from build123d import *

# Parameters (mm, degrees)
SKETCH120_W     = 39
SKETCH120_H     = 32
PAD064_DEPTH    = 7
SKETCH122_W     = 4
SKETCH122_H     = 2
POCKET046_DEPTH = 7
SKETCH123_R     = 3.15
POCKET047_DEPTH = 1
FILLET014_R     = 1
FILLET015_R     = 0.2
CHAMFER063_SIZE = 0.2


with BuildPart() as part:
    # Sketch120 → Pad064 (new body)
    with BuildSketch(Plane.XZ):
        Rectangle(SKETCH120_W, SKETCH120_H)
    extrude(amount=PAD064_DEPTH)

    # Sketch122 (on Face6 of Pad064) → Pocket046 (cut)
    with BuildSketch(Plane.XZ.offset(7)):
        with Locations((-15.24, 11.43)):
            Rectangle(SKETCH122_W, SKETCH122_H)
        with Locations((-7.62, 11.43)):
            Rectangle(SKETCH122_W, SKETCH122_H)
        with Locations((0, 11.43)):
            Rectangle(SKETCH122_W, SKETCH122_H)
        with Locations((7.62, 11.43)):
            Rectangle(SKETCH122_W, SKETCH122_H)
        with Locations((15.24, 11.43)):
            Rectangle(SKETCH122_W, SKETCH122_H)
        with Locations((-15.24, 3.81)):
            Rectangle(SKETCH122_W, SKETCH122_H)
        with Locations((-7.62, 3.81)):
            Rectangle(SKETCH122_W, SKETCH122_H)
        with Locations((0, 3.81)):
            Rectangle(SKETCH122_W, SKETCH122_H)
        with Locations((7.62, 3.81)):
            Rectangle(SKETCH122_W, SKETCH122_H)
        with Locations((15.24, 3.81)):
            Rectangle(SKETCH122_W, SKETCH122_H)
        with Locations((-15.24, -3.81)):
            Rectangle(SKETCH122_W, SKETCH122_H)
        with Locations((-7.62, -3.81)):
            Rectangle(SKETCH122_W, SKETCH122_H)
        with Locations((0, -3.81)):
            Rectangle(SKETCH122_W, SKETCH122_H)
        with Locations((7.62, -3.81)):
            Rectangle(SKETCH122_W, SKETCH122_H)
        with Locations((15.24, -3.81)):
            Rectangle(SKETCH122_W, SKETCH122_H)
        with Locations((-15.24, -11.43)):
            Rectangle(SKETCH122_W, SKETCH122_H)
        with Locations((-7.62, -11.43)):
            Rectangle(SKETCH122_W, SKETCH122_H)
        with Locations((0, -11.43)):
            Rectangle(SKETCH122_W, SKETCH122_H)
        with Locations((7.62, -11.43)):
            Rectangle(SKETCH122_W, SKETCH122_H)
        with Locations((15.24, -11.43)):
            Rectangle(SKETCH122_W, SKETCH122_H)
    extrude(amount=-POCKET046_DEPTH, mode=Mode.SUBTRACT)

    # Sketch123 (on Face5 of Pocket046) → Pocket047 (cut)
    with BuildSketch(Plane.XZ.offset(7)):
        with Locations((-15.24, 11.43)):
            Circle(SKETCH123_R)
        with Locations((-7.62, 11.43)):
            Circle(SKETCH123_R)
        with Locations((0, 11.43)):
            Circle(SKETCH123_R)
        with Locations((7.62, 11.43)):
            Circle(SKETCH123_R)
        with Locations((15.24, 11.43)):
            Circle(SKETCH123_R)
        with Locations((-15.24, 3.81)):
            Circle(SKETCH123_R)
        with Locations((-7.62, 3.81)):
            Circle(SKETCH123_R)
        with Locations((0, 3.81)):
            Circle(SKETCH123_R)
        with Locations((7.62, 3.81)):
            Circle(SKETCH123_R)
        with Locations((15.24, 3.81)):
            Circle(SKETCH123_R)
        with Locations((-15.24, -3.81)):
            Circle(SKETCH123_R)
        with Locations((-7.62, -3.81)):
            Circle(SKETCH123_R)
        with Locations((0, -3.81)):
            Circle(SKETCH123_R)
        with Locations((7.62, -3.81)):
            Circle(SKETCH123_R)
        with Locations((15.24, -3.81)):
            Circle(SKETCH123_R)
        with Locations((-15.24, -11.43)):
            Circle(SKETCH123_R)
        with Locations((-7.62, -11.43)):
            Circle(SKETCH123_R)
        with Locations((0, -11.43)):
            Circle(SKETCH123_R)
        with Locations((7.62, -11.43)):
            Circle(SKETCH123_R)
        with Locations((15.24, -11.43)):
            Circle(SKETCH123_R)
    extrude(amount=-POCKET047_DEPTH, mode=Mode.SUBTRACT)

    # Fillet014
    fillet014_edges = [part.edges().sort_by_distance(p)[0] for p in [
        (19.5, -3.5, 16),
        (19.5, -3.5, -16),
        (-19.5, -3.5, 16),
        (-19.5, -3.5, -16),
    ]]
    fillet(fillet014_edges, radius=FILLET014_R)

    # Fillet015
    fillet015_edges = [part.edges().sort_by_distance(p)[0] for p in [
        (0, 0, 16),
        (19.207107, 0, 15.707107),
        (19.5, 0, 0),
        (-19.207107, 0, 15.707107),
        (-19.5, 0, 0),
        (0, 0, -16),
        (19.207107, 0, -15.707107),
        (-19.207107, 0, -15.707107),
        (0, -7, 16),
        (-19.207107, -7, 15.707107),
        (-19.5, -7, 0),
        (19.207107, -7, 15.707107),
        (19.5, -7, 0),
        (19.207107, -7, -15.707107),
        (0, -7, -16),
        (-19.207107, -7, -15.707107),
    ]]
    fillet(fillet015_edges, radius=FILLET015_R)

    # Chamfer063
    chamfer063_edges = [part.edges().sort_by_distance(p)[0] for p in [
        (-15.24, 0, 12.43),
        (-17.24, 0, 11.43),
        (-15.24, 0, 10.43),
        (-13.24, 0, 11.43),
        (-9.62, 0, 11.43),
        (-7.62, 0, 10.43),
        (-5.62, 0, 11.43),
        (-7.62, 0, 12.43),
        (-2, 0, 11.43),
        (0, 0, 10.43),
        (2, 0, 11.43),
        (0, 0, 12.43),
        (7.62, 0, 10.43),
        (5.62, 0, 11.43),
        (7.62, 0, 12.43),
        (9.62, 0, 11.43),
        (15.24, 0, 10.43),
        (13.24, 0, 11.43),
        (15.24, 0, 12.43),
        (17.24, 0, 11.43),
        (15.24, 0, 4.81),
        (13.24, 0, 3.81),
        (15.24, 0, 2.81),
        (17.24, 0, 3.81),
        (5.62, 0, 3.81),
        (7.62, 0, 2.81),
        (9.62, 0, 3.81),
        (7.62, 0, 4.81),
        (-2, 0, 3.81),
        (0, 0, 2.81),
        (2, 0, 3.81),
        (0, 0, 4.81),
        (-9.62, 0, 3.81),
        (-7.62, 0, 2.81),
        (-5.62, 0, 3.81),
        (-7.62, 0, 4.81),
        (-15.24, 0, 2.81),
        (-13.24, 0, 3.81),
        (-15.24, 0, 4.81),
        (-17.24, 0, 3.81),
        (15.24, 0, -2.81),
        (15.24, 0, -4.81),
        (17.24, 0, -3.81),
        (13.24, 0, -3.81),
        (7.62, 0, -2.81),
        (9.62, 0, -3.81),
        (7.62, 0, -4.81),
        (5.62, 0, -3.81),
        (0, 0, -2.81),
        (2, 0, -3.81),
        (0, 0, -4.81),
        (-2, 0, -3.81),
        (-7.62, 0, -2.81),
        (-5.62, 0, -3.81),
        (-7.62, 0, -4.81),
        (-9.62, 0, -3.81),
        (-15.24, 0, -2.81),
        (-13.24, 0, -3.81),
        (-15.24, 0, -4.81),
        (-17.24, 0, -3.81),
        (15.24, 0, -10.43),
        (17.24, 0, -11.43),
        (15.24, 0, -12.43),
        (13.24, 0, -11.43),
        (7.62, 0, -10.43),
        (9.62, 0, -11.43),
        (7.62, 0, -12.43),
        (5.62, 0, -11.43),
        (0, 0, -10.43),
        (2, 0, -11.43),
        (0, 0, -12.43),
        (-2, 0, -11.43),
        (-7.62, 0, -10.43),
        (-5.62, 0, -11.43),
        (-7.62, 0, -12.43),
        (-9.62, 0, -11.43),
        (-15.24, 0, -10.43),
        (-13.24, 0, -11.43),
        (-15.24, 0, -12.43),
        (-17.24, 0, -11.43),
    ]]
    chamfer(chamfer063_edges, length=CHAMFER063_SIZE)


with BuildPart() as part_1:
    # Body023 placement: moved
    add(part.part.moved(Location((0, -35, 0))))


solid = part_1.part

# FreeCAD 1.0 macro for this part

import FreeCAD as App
import Part
import Sketcher
Q = App.Units.Quantity


def edges_at(feature, points):
    """Names of the edges that pass closest to the given points."""
    edges = feature.Shape.Edges
    near = lambda p: min(range(len(edges)), key=lambda i: edges[i].distToShape(Part.Vertex(*p))[0])
    return sorted({f"Edge{near(p) + 1}" for p in points})


def add_polygon(sketch, points):
    """Adds a closed chain of lines whose ends are joined by coincident constraints."""
    first, n = sketch.GeometryCount, len(points)
    for a, b in zip(points, points[1:] + points[:1]):
        sketch.addGeometry(Part.LineSegment(App.Vector(*a, 0), App.Vector(*b, 0)), False)
    for i in range(n):
        sketch.addConstraint(Sketcher.Constraint("Coincident", first + i, 2, first + (i + 1) % n, 1))

doc = App.newDocument("Part")
body = doc.addObject("PartDesign::Body", "Body")

# Sketch on XZ plane
sketch1 = body.newObject("Sketcher::SketchObject", "Sketch")
sketch1.AttachmentSupport = (doc.getObject("XZ_Plane"), [""])
sketch1.MapMode = "FlatFace"
add_polygon(sketch1, [(-20, 16), (-20, -16), (20, -16), (20, 16)])  # lines 0-3
sketch1.addConstraint([
    Sketcher.Constraint("Vertical", 0),
    Sketcher.Constraint("Horizontal", 1),
    Sketcher.Constraint("Vertical", 2),
    Sketcher.Constraint("Horizontal", 3),
    Sketcher.Constraint("Symmetric", 0, 2, 2, 2, -1, 1),
    Sketcher.Constraint("DistanceX", 1, 1, 1, 2, Q("39 mm")),
    Sketcher.Constraint("DistanceY", 0, 2, 0, 1, Q("32 mm")),
])
pad1 = body.newObject("PartDesign::Pad", "Pad")
pad1.Profile = sketch1
pad1.Length = 7

# Sketch on XZ plane
sketch2 = body.newObject("Sketcher::SketchObject", "Sketch001")
sketch2.AttachmentSupport = (doc.getObject("XZ_Plane"), [""])
sketch2.MapMode = "FlatFace"
sketch2.AttachmentOffset = App.Placement(App.Vector(0, 0, 7), App.Rotation())
add_polygon(sketch2, [(-17.2, 12.4), (-17.2, 10.4), (-13.2, 10.4), (-13.2, 12.4)])  # lines 0-3
add_polygon(sketch2, [(-9.6, 12.4), (-9.6, 10.4), (-5.6, 10.4), (-5.6, 12.4)])  # lines 4-7
add_polygon(sketch2, [(-2, 12.4), (-2, 10.4), (2, 10.4), (2, 12.4)])  # lines 8-11
add_polygon(sketch2, [(5.6, 12.4), (5.6, 10.4), (9.6, 10.4), (9.6, 12.4)])  # lines 12-15
add_polygon(sketch2, [(13.2, 12.4), (13.2, 10.4), (17.2, 10.4), (17.2, 12.4)])  # lines 16-19
add_polygon(sketch2, [(-17.2, 4.8), (-17.2, 2.8), (-13.2, 2.8), (-13.2, 4.8)])  # lines 20-23
add_polygon(sketch2, [(-9.6, 4.8), (-9.6, 2.8), (-5.6, 2.8), (-5.6, 4.8)])  # lines 24-27
add_polygon(sketch2, [(-2, 4.8), (-2, 2.8), (2, 2.8), (2, 4.8)])  # lines 28-31
add_polygon(sketch2, [(5.6, 4.8), (5.6, 2.8), (9.6, 2.8), (9.6, 4.8)])  # lines 32-35
add_polygon(sketch2, [(13.2, 4.8), (13.2, 2.8), (17.2, 2.8), (17.2, 4.8)])  # lines 36-39
add_polygon(sketch2, [(-17.2, -2.8), (-17.2, -4.8), (-13.2, -4.8), (-13.2, -2.8)])  # lines 40-43
add_polygon(sketch2, [(-9.6, -2.8), (-9.6, -4.8), (-5.6, -4.8), (-5.6, -2.8)])  # lines 44-47
add_polygon(sketch2, [(-2, -2.8), (-2, -4.8), (2, -4.8), (2, -2.8)])  # lines 48-51
add_polygon(sketch2, [(5.6, -2.8), (5.6, -4.8), (9.6, -4.8), (9.6, -2.8)])  # lines 52-55
add_polygon(sketch2, [(13.2, -2.8), (13.2, -4.8), (17.2, -4.8), (17.2, -2.8)])  # lines 56-59
add_polygon(sketch2, [(-17.2, -10.4), (-17.2, -12.4), (-13.2, -12.4), (-13.2, -10.4)])  # lines 60-63
add_polygon(sketch2, [(-9.6, -10.4), (-9.6, -12.4), (-5.6, -12.4), (-5.6, -10.4)])  # lines 64-67
add_polygon(sketch2, [(-2, -10.4), (-2, -12.4), (2, -12.4), (2, -10.4)])  # lines 68-71
add_polygon(sketch2, [(5.6, -10.4), (5.6, -12.4), (9.6, -12.4), (9.6, -10.4)])  # lines 72-75
add_polygon(sketch2, [(13.2, -10.4), (13.2, -12.4), (17.2, -12.4), (17.2, -10.4)])  # lines 76-79
sketch2.addConstraint([
    Sketcher.Constraint("Vertical", 0),
    Sketcher.Constraint("Horizontal", 1),
    Sketcher.Constraint("Vertical", 2),
    Sketcher.Constraint("Horizontal", 3),
    Sketcher.Constraint("Vertical", 4),
    Sketcher.Constraint("Horizontal", 5),
    Sketcher.Constraint("Vertical", 6),
    Sketcher.Constraint("Horizontal", 7),
    Sketcher.Constraint("Vertical", 8),
    Sketcher.Constraint("Horizontal", 9),
    Sketcher.Constraint("Vertical", 10),
    Sketcher.Constraint("Horizontal", 11),
    Sketcher.Constraint("Vertical", 12),
    Sketcher.Constraint("Horizontal", 13),
    Sketcher.Constraint("Vertical", 14),
    Sketcher.Constraint("Horizontal", 15),
    Sketcher.Constraint("Vertical", 16),
    Sketcher.Constraint("Horizontal", 17),
    Sketcher.Constraint("Vertical", 18),
    Sketcher.Constraint("Horizontal", 19),
    Sketcher.Constraint("Vertical", 20),
    Sketcher.Constraint("Horizontal", 21),
    Sketcher.Constraint("Vertical", 22),
    Sketcher.Constraint("Horizontal", 23),
    Sketcher.Constraint("Vertical", 24),
    Sketcher.Constraint("Horizontal", 25),
    Sketcher.Constraint("Vertical", 26),
    Sketcher.Constraint("Horizontal", 27),
    Sketcher.Constraint("Vertical", 28),
    Sketcher.Constraint("Horizontal", 29),
    Sketcher.Constraint("Vertical", 30),
    Sketcher.Constraint("Horizontal", 31),
    Sketcher.Constraint("Vertical", 32),
    Sketcher.Constraint("Horizontal", 33),
    Sketcher.Constraint("Vertical", 34),
    Sketcher.Constraint("Horizontal", 35),
    Sketcher.Constraint("Vertical", 36),
    Sketcher.Constraint("Horizontal", 37),
    Sketcher.Constraint("Vertical", 38),
    Sketcher.Constraint("Horizontal", 39),
    Sketcher.Constraint("Vertical", 40),
    Sketcher.Constraint("Horizontal", 41),
    Sketcher.Constraint("Vertical", 42),
    Sketcher.Constraint("Horizontal", 43),
    Sketcher.Constraint("Vertical", 44),
    Sketcher.Constraint("Horizontal", 45),
    Sketcher.Constraint("Vertical", 46),
    Sketcher.Constraint("Horizontal", 47),
    Sketcher.Constraint("Vertical", 48),
    Sketcher.Constraint("Horizontal", 49),
    Sketcher.Constraint("Vertical", 50),
    Sketcher.Constraint("Horizontal", 51),
    Sketcher.Constraint("Vertical", 52),
    Sketcher.Constraint("Horizontal", 53),
    Sketcher.Constraint("Vertical", 54),
    Sketcher.Constraint("Horizontal", 55),
    Sketcher.Constraint("Vertical", 56),
    Sketcher.Constraint("Horizontal", 57),
    Sketcher.Constraint("Vertical", 58),
    Sketcher.Constraint("Horizontal", 59),
    Sketcher.Constraint("Vertical", 60),
    Sketcher.Constraint("Horizontal", 61),
    Sketcher.Constraint("Vertical", 62),
    Sketcher.Constraint("Horizontal", 63),
    Sketcher.Constraint("Vertical", 64),
    Sketcher.Constraint("Horizontal", 65),
    Sketcher.Constraint("Vertical", 66),
    Sketcher.Constraint("Horizontal", 67),
    Sketcher.Constraint("Vertical", 68),
    Sketcher.Constraint("Horizontal", 69),
    Sketcher.Constraint("Vertical", 70),
    Sketcher.Constraint("Horizontal", 71),
    Sketcher.Constraint("Vertical", 72),
    Sketcher.Constraint("Horizontal", 73),
    Sketcher.Constraint("Vertical", 74),
    Sketcher.Constraint("Horizontal", 75),
    Sketcher.Constraint("Vertical", 76),
    Sketcher.Constraint("Horizontal", 77),
    Sketcher.Constraint("Vertical", 78),
    Sketcher.Constraint("Horizontal", 79),
    Sketcher.Constraint("Symmetric", 38, 2, 40, 2, -1, 1),
    Sketcher.Constraint("Symmetric", 36, 2, 42, 2, -1, 1),
    Sketcher.Constraint("Symmetric", 34, 2, 44, 2, -1, 1),
    Sketcher.Constraint("Symmetric", 32, 2, 46, 2, -1, 1),
    Sketcher.Constraint("Symmetric", 30, 2, 48, 2, -1, 1),
    Sketcher.Constraint("Symmetric", 28, 2, 50, 2, -1, 1),
    Sketcher.Constraint("Symmetric", 26, 2, 52, 2, -1, 1),
    Sketcher.Constraint("Symmetric", 24, 2, 54, 2, -1, 1),
    Sketcher.Constraint("Symmetric", 22, 2, 56, 2, -1, 1),
    Sketcher.Constraint("Symmetric", 20, 2, 58, 2, -1, 1),
    Sketcher.Constraint("Symmetric", 18, 2, 60, 2, -1, 1),
    Sketcher.Constraint("Symmetric", 16, 2, 62, 2, -1, 1),
    Sketcher.Constraint("Symmetric", 14, 2, 64, 2, -1, 1),
    Sketcher.Constraint("Symmetric", 12, 2, 66, 2, -1, 1),
    Sketcher.Constraint("Symmetric", 10, 2, 68, 2, -1, 1),
    Sketcher.Constraint("Symmetric", 8, 2, 70, 2, -1, 1),
    Sketcher.Constraint("Symmetric", 6, 2, 72, 2, -1, 1),
    Sketcher.Constraint("Symmetric", 4, 2, 74, 2, -1, 1),
    Sketcher.Constraint("Symmetric", 2, 2, 76, 2, -1, 1),
    Sketcher.Constraint("Symmetric", 0, 2, 78, 2, -1, 1),
    Sketcher.Constraint("Symmetric", 5, 2, 12, 2, -2),
    Sketcher.Constraint("Symmetric", 7, 2, 14, 2, -2),
    Sketcher.Constraint("Symmetric", 1, 2, 16, 2, -2),
    Sketcher.Constraint("Symmetric", 3, 2, 18, 2, -2),
    Sketcher.Constraint("Symmetric", 25, 2, 32, 2, -2),
    Sketcher.Constraint("Symmetric", 27, 2, 34, 2, -2),
    Sketcher.Constraint("Symmetric", 21, 2, 36, 2, -2),
    Sketcher.Constraint("Symmetric", 23, 2, 38, 2, -2),
    Sketcher.Constraint("Horizontal", 1, 2, 4, 2),
    Sketcher.Constraint("Horizontal", 3, 2, 6, 2),
    Sketcher.Constraint("Horizontal", 5, 2, 8, 2),
    Sketcher.Constraint("Horizontal", 7, 2, 10, 2),
    Sketcher.Constraint("Horizontal", 21, 2, 24, 2),
    Sketcher.Constraint("Horizontal", 23, 2, 26, 2),
    Sketcher.Constraint("Horizontal", 25, 2, 28, 2),
    Sketcher.Constraint("Horizontal", 27, 2, 30, 2),
    Sketcher.Constraint("Vertical", 3, 2, 20, 2),
    Sketcher.Constraint("Vertical", 2, 2, 21, 2),
    Sketcher.Constraint("Vertical", 7, 2, 24, 2),
    Sketcher.Constraint("Vertical", 6, 2, 25, 2),
    Sketcher.Constraint("Vertical", 11, 2, 28, 2),
    Sketcher.Constraint("Vertical", 10, 2, 29, 2),
    Sketcher.Constraint("Vertical", 31, 2, 48, 2),
    Sketcher.Constraint("Equal", 3, 5),
    Sketcher.Constraint("Equal", 7, 9),
    Sketcher.Constraint("Equal", 18, 20),
    Sketcher.Constraint("DistanceX", 1, 1, 1, 2, Q("4 mm")),
    Sketcher.Constraint("DistanceY", 0, 2, 0, 1, Q("2 mm")),
    Sketcher.Constraint("DistanceX", 0, 2, -1, 1, Q("17.24 mm")),
    Sketcher.Constraint("DistanceY", -1, 1, 0, 2, Q("10.43 mm")),
    Sketcher.Constraint("DistanceX", 4, 2, -1, 1, Q("9.62 mm")),
    Sketcher.Constraint("DistanceY", -1, 1, 20, 2, Q("2.81 mm")),
])
pocket1 = body.newObject("PartDesign::Pocket", "Pocket")
pocket1.Profile = sketch2
pocket1.Length = 7

# Sketch on XZ plane
sketch3 = body.newObject("Sketcher::SketchObject", "Sketch002")
sketch3.AttachmentSupport = (doc.getObject("XZ_Plane"), [""])
sketch3.MapMode = "FlatFace"
sketch3.AttachmentOffset = App.Placement(App.Vector(0, 0, 7), App.Rotation())
sketch3.addGeometry([
    Part.Circle(App.Vector(-15.2, 11.4, 0), App.Vector(0, 0, 1), 3.1),  # 0
    Part.Circle(App.Vector(-7.6, 11.4, 0), App.Vector(0, 0, 1), 3.1),  # 1
    Part.Circle(App.Vector(0, 11.4, 0), App.Vector(0, 0, 1), 3.1),  # 2
    Part.Circle(App.Vector(7.6, 11.4, 0), App.Vector(0, 0, 1), 3.1),  # 3
    Part.Circle(App.Vector(15.2, 11.4, 0), App.Vector(0, 0, 1), 3.1),  # 4
    Part.Circle(App.Vector(-15.2, 3.8, 0), App.Vector(0, 0, 1), 3.1),  # 5
    Part.Circle(App.Vector(-7.6, 3.8, 0), App.Vector(0, 0, 1), 3.1),  # 6
    Part.Circle(App.Vector(0, 3.8, 0), App.Vector(0, 0, 1), 3.1),  # 7
    Part.Circle(App.Vector(7.6, 3.8, 0), App.Vector(0, 0, 1), 3.1),  # 8
    Part.Circle(App.Vector(15.2, 3.8, 0), App.Vector(0, 0, 1), 3.1),  # 9
    Part.Circle(App.Vector(-15.2, -3.8, 0), App.Vector(0, 0, 1), 3.1),  # 10
    Part.Circle(App.Vector(-7.6, -3.8, 0), App.Vector(0, 0, 1), 3.1),  # 11
    Part.Circle(App.Vector(0, -3.8, 0), App.Vector(0, 0, 1), 3.1),  # 12
    Part.Circle(App.Vector(7.6, -3.8, 0), App.Vector(0, 0, 1), 3.1),  # 13
    Part.Circle(App.Vector(15.2, -3.8, 0), App.Vector(0, 0, 1), 3.1),  # 14
    Part.Circle(App.Vector(-15.2, -11.4, 0), App.Vector(0, 0, 1), 3.1),  # 15
    Part.Circle(App.Vector(-7.6, -11.4, 0), App.Vector(0, 0, 1), 3.1),  # 16
    Part.Circle(App.Vector(0, -11.4, 0), App.Vector(0, 0, 1), 3.1),  # 17
    Part.Circle(App.Vector(7.6, -11.4, 0), App.Vector(0, 0, 1), 3.1),  # 18
    Part.Circle(App.Vector(15.2, -11.4, 0), App.Vector(0, 0, 1), 3.1),  # 19
], False)
sketch3.addConstraint([
    Sketcher.Constraint("Equal", 0, 1),
    Sketcher.Constraint("Equal", 1, 2),
    Sketcher.Constraint("Equal", 2, 3),
    Sketcher.Constraint("Equal", 3, 4),
    Sketcher.Constraint("Equal", 4, 5),
    Sketcher.Constraint("Equal", 5, 6),
    Sketcher.Constraint("Equal", 6, 7),
    Sketcher.Constraint("Equal", 7, 8),
    Sketcher.Constraint("Equal", 8, 9),
    Sketcher.Constraint("Equal", 9, 10),
    Sketcher.Constraint("Equal", 10, 11),
    Sketcher.Constraint("Equal", 11, 12),
    Sketcher.Constraint("Equal", 12, 13),
    Sketcher.Constraint("Equal", 13, 14),
    Sketcher.Constraint("Equal", 14, 15),
    Sketcher.Constraint("Equal", 15, 16),
    Sketcher.Constraint("Equal", 16, 17),
    Sketcher.Constraint("Equal", 17, 18),
    Sketcher.Constraint("Equal", 18, 19),
    Sketcher.Constraint("Symmetric", 9, 3, 10, 3, -1, 1),
    Sketcher.Constraint("Symmetric", 8, 3, 11, 3, -1, 1),
    Sketcher.Constraint("Symmetric", 7, 3, 12, 3, -1, 1),
    Sketcher.Constraint("Symmetric", 6, 3, 13, 3, -1, 1),
    Sketcher.Constraint("Symmetric", 5, 3, 14, 3, -1, 1),
    Sketcher.Constraint("Symmetric", 4, 3, 15, 3, -1, 1),
    Sketcher.Constraint("Symmetric", 3, 3, 16, 3, -1, 1),
    Sketcher.Constraint("Symmetric", 2, 3, 17, 3, -1, 1),
    Sketcher.Constraint("Symmetric", 1, 3, 18, 3, -1, 1),
    Sketcher.Constraint("Symmetric", 0, 3, 19, 3, -1, 1),
    Sketcher.Constraint("Symmetric", 1, 3, 3, 3, -2),
    Sketcher.Constraint("Symmetric", 0, 3, 4, 3, -2),
    Sketcher.Constraint("Symmetric", 6, 3, 8, 3, -2),
    Sketcher.Constraint("Symmetric", 5, 3, 9, 3, -2),
    Sketcher.Constraint("PointOnObject", 2, 3, -2),
    Sketcher.Constraint("PointOnObject", 7, 3, -2),
    Sketcher.Constraint("Horizontal", 0, 3, 1, 3),
    Sketcher.Constraint("Horizontal", 1, 3, 2, 3),
    Sketcher.Constraint("Horizontal", 5, 3, 6, 3),
    Sketcher.Constraint("Horizontal", 6, 3, 7, 3),
    Sketcher.Constraint("Vertical", 0, 3, 5, 3),
    Sketcher.Constraint("Vertical", 1, 3, 6, 3),
    Sketcher.Constraint("Diameter", 0, Q("6.3 mm")),
    Sketcher.Constraint("DistanceX", 0, 3, -1, 1, Q("15.24 mm")),
    Sketcher.Constraint("DistanceY", -1, 1, 0, 3, Q("11.43 mm")),
    Sketcher.Constraint("DistanceX", 1, 3, -1, 1, Q("7.62 mm")),
    Sketcher.Constraint("DistanceY", -1, 1, 5, 3, Q("3.81 mm")),
])
pocket2 = body.newObject("PartDesign::Pocket", "Pocket001")
pocket2.Profile = sketch3
pocket2.Length = 1
doc.recompute()

fillet = body.newObject("PartDesign::Fillet", "Fillet")
fillet.Base = (pocket2, edges_at(pocket2, [
    (19.5, -3.5, 16),
    (19.5, -3.5, -16),
    (-19.5, -3.5, 16),
    (-19.5, -3.5, -16),
]))
fillet.Radius = 1
doc.recompute()

fillet2 = body.newObject("PartDesign::Fillet", "Fillet001")
fillet2.Base = (fillet, edges_at(fillet, [
    (0, 0, 16),
    (19.207, 0, 15.707),
    (19.5, 0, 0),
    (-19.207, 0, 15.707),
    (-19.5, 0, 0),
    (0, 0, -16),
    (19.207, 0, -15.707),
    (-19.207, 0, -15.707),
    (0, -7, 16),
    (-19.207, -7, 15.707),
    (-19.5, -7, 0),
    (19.207, -7, 15.707),
    (19.5, -7, 0),
    (19.207, -7, -15.707),
    (0, -7, -16),
    (-19.207, -7, -15.707),
]))
fillet2.Radius = 0.2
doc.recompute()

chamfer = body.newObject("PartDesign::Chamfer", "Chamfer")
chamfer.Base = (fillet2, edges_at(fillet2, [
    (-15.24, 0, 12.43),
    (-17.24, 0, 11.43),
    (-15.24, 0, 10.43),
    (-13.24, 0, 11.43),
    (-9.62, 0, 11.43),
    (-7.62, 0, 10.43),
    (-5.62, 0, 11.43),
    (-7.62, 0, 12.43),
    (-2, 0, 11.43),
    (0, 0, 10.43),
    (2, 0, 11.43),
    (0, 0, 12.43),
    (7.62, 0, 10.43),
    (5.62, 0, 11.43),
    (7.62, 0, 12.43),
    (9.62, 0, 11.43),
    (15.24, 0, 10.43),
    (13.24, 0, 11.43),
    (15.24, 0, 12.43),
    (17.24, 0, 11.43),
    (15.24, 0, 4.81),
    (13.24, 0, 3.81),
    (15.24, 0, 2.81),
    (17.24, 0, 3.81),
    (5.62, 0, 3.81),
    (7.62, 0, 2.81),
    (9.62, 0, 3.81),
    (7.62, 0, 4.81),
    (-2, 0, 3.81),
    (0, 0, 2.81),
    (2, 0, 3.81),
    (0, 0, 4.81),
    (-9.62, 0, 3.81),
    (-7.62, 0, 2.81),
    (-5.62, 0, 3.81),
    (-7.62, 0, 4.81),
    (-15.24, 0, 2.81),
    (-13.24, 0, 3.81),
    (-15.24, 0, 4.81),
    (-17.24, 0, 3.81),
    (15.24, 0, -2.81),
    (15.24, 0, -4.81),
    (17.24, 0, -3.81),
    (13.24, 0, -3.81),
    (7.62, 0, -2.81),
    (9.62, 0, -3.81),
    (7.62, 0, -4.81),
    (5.62, 0, -3.81),
    (0, 0, -2.81),
    (2, 0, -3.81),
    (0, 0, -4.81),
    (-2, 0, -3.81),
    (-7.62, 0, -2.81),
    (-5.62, 0, -3.81),
    (-7.62, 0, -4.81),
    (-9.62, 0, -3.81),
    (-15.24, 0, -2.81),
    (-13.24, 0, -3.81),
    (-15.24, 0, -4.81),
    (-17.24, 0, -3.81),
    (15.24, 0, -10.43),
    (17.24, 0, -11.43),
    (15.24, 0, -12.43),
    (13.24, 0, -11.43),
    (7.62, 0, -10.43),
    (9.62, 0, -11.43),
    (7.62, 0, -12.43),
    (5.62, 0, -11.43),
    (0, 0, -10.43),
    (2, 0, -11.43),
    (0, 0, -12.43),
    (-2, 0, -11.43),
    (-7.62, 0, -10.43),
    (-5.62, 0, -11.43),
    (-7.62, 0, -12.43),
    (-9.62, 0, -11.43),
    (-15.24, 0, -10.43),
    (-13.24, 0, -11.43),
    (-15.24, 0, -12.43),
    (-17.24, 0, -11.43),
]))
chamfer.Size = 0.2
body2 = doc.addObject("PartDesign::Body", "Body001")
doc.recompute()

body.Placement = App.Placement(App.Vector(0, -35, 0), App.Rotation(App.Vector(0, 0, 1), 0))
boolean = body2.newObject("PartDesign::Boolean", "Boolean")
boolean.Type = "Fuse"
boolean.addObjects([body])

doc.recompute()
